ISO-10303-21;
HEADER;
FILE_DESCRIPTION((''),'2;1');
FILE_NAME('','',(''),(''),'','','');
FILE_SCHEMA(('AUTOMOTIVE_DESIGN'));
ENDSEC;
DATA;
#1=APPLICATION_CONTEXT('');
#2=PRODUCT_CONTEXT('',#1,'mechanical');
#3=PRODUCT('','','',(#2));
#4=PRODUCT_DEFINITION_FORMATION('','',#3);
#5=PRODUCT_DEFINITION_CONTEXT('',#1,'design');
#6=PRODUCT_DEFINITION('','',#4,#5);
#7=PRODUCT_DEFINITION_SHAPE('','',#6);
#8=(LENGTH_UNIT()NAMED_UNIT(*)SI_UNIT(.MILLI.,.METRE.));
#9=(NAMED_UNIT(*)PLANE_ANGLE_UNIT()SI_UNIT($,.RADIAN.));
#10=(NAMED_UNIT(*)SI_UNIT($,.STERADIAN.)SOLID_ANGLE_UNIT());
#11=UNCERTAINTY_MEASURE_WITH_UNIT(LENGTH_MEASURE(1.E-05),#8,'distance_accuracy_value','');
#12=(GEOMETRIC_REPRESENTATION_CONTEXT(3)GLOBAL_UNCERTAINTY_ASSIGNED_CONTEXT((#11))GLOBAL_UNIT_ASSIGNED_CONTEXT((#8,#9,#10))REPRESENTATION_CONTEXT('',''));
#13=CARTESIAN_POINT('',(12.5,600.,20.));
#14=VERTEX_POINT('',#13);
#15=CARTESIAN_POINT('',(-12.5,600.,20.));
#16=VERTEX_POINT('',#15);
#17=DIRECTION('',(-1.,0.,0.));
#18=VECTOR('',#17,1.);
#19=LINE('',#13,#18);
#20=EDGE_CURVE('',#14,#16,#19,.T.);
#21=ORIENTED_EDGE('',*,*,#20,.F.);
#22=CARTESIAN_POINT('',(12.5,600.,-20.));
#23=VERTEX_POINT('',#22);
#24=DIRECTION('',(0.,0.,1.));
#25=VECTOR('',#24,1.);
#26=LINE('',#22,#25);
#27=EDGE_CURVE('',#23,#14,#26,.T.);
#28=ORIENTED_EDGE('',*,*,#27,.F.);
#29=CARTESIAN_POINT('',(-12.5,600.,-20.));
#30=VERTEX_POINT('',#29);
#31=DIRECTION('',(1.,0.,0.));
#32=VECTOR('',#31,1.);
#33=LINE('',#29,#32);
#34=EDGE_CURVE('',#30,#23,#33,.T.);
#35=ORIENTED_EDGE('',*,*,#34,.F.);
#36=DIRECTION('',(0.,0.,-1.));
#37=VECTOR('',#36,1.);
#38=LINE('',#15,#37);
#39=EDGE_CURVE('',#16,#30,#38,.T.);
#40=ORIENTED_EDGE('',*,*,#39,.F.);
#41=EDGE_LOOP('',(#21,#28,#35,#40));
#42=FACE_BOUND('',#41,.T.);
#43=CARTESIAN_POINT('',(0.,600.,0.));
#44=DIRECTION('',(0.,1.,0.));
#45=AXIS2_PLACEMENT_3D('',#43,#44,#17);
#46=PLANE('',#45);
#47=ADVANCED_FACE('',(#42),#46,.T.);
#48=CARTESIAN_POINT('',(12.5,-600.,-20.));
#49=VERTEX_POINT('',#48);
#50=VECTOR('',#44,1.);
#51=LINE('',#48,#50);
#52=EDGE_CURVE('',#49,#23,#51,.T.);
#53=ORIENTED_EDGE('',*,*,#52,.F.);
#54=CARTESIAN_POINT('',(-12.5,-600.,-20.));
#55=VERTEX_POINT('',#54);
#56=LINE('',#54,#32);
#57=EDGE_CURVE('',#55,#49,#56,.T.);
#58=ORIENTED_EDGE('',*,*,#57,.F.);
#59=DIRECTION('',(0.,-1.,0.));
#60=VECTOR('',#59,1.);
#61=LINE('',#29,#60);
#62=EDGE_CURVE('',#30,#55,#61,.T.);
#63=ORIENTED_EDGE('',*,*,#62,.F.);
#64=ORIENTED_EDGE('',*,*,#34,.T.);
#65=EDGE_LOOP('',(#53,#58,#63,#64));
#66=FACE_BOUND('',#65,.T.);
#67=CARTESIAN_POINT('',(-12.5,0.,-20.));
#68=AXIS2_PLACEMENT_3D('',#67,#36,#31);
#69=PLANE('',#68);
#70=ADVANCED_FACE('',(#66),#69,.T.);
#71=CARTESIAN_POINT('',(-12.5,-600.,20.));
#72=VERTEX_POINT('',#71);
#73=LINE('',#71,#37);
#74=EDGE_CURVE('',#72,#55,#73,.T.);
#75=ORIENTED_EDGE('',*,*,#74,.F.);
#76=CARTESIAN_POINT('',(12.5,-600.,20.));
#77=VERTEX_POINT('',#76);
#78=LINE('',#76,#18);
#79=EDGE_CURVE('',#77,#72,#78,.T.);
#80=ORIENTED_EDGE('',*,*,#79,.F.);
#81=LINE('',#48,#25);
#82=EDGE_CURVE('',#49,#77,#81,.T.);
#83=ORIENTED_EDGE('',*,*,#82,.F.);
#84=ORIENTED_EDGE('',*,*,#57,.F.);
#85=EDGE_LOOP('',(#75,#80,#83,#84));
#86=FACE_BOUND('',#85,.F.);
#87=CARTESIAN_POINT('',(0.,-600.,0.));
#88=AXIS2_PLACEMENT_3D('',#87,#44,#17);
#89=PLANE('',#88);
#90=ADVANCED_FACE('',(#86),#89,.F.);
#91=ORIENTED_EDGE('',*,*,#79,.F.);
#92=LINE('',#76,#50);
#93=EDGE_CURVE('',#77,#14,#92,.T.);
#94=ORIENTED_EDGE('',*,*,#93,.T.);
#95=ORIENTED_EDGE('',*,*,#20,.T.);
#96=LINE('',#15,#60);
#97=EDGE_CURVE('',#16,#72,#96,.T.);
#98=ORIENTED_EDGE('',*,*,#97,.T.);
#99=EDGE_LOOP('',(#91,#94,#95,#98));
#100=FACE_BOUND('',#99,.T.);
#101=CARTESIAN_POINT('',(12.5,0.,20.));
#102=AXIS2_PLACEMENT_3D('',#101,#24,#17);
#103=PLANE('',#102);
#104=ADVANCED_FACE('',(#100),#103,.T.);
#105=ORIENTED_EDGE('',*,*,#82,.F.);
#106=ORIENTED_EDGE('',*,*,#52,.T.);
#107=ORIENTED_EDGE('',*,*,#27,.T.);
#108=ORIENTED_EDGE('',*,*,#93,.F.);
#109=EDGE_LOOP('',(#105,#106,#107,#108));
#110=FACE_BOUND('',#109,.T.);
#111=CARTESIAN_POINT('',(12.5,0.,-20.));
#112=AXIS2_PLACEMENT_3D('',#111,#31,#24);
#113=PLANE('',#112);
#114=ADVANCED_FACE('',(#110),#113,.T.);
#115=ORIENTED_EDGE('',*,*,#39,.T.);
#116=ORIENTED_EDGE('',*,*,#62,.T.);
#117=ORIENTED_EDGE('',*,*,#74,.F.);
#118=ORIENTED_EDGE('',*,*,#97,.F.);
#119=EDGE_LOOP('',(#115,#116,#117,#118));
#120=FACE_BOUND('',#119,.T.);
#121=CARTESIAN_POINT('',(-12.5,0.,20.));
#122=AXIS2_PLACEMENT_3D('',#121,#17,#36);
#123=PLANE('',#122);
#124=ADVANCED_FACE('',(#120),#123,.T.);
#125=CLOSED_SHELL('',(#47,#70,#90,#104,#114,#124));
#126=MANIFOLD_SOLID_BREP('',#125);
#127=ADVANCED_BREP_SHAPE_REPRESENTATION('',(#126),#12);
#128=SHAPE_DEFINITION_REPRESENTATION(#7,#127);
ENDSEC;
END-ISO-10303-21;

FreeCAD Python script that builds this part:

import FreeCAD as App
import Part
import Sketcher

V = App.Vector


def add_polygon(sketch, points):
    """Adds a closed chain of lines whose ends are joined by coincident constraints."""
    first, n = sketch.GeometryCount, len(points)
    for a, b in zip(points, points[1:] + points[:1]):
        sketch.addGeometry(Part.LineSegment(App.Vector(*a, 0), App.Vector(*b, 0)), False)
    for i in range(n):
        sketch.addConstraint(Sketcher.Constraint("Coincident", first + i, 2, first + (i + 1) % n, 1))

doc = App.newDocument("Part")
body = doc.addObject("PartDesign::Body", "Body")

# Sketch on XZ plane
sketch1 = body.newObject("Sketcher::SketchObject", "Sketch")
sketch1.AttachmentSupport = (doc.getObject("XZ_Plane"), [""])
sketch1.MapMode = "FlatFace"
add_polygon(sketch1, [(-12, 20), (12, 20), (12, -20), (-12, -20)])  # lines 0-3
sketch1.addConstraint(Sketcher.Constraint("Horizontal", 0))
sketch1.addConstraint(Sketcher.Constraint("Vertical", 1))
sketch1.addConstraint(Sketcher.Constraint("Horizontal", 2))
sketch1.addConstraint(Sketcher.Constraint("Vertical", 3))
sketch1.addConstraint(Sketcher.Constraint("Symmetric", 0, 2, 2, 2, -1, 1))
sketch1.addConstraint(Sketcher.Constraint("DistanceX", 0, 1, 0, 2, 25.0))
sketch1.addConstraint(Sketcher.Constraint("DistanceY", 1, 2, 1, 1, 40.0))
pad1 = body.newObject("PartDesign::Pad", "Pad")
pad1.Profile = sketch1
pad1.Length = 1200
pad1.Midplane = True

doc.recompute()
